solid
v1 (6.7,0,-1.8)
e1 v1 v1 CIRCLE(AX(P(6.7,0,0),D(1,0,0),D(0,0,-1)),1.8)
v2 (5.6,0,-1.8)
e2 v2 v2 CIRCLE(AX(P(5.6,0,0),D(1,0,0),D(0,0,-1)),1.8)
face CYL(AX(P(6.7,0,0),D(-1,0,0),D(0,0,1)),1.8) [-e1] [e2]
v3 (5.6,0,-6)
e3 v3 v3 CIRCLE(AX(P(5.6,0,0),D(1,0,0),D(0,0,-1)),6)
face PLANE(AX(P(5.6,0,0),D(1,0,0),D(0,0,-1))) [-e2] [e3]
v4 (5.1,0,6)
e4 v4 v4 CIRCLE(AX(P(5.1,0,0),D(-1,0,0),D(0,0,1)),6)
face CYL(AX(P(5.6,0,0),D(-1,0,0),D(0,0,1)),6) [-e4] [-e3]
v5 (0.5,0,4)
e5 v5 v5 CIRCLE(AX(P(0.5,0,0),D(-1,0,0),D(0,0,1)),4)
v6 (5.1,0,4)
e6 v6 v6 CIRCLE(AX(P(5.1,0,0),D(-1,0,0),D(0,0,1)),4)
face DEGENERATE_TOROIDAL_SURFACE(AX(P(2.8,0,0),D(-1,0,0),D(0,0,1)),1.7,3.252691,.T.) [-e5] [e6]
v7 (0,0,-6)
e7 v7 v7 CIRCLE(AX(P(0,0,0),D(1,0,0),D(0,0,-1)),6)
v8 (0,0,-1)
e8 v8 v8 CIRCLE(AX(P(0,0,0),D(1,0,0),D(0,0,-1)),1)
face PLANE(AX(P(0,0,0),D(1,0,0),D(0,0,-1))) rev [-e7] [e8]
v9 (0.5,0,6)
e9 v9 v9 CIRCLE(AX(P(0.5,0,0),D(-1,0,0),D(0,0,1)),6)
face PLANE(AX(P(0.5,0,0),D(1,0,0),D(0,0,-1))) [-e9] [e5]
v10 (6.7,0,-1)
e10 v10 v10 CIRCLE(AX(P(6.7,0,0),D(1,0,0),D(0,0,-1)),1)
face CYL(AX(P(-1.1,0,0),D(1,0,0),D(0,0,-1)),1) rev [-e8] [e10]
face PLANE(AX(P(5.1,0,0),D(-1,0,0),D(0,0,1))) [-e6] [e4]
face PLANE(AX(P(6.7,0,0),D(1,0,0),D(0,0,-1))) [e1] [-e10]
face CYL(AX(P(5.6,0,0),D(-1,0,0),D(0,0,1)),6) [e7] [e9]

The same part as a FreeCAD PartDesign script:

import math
import FreeCAD as App
import Part
import Sketcher
from FreeCAD import Vector
Q = App.Units.Quantity

doc = App.newDocument("Part")
body = doc.addObject("PartDesign::Body", "Body")

# Sketch on YZ plane
sketch1 = body.newObject("Sketcher::SketchObject", "Sketch")
sketch1.AttachmentSupport = (doc.getObject("YZ_Plane"), [""])
sketch1.MapMode = "FlatFace"
sketch1.addGeometry(Part.Circle(Vector(0, 0, 0), Vector(0, 0, 1), 6), False)
sketch1.addConstraint([
    Sketcher.Constraint("Coincident", 0, 3, -1, 1),
    Sketcher.Constraint("Diameter", 0, Q("12 mm")),
])
pad1 = body.newObject("PartDesign::Pad", "Pad")
pad1.Profile = sketch1
pad1.Length = 5.6

# Sketch on YZ plane
sketch2 = body.newObject("Sketcher::SketchObject", "Sketch001")
sketch2.AttachmentSupport = (doc.getObject("YZ_Plane"), [""])
sketch2.MapMode = "FlatFace"
sketch2.AttachmentOffset = App.Placement(Vector(0, 0, 5.6), App.Rotation())
sketch2.addGeometry(Part.Circle(Vector(0, 0, 0), Vector(0, 0, 1), 1), False)
sketch2.addConstraint([
    Sketcher.Constraint("Coincident", 0, 3, -1, 1),
    Sketcher.Constraint("Diameter", 0, Q("2 mm")),
])
pocket1 = body.newObject("PartDesign::Pocket", "Pocket")
pocket1.Profile = sketch2
pocket1.Length = 6.7

# Sketch on YZ plane
sketch3 = body.newObject("Sketcher::SketchObject", "Sketch002")
sketch3.AttachmentSupport = (doc.getObject("YZ_Plane"), [""])
sketch3.MapMode = "FlatFace"
sketch3.AttachmentOffset = App.Placement(Vector(0, 0, 6.7), App.Rotation())
sketch3.addGeometry([
    Part.Circle(Vector(0, 0, 0), Vector(0, 0, 1), 1.8),
    Part.Circle(Vector(0, 0, 0), Vector(0, 0, 1), 1),
], False)
sketch3.addConstraint([
    Sketcher.Constraint("Coincident", 0, 3, -1, 1),
    Sketcher.Constraint("Coincident", 1, 3, -1, 1),
    Sketcher.Constraint("Diameter", 1, Q("2 mm")),
    Sketcher.Constraint("Diameter", 0, Q("3.6 mm")),
])
pad2 = body.newObject("PartDesign::Pad", "Pad001")
pad2.Profile = sketch3
pad2.Length = 1.1
pad2.Reversed = True

# Sketch on XY plane
sketch4 = body.newObject("Sketcher::SketchObject", "Sketch003")
sketch4.AttachmentSupport = (doc.getObject("XY_Plane"), [""])
sketch4.MapMode = "FlatFace"
sketch4.addGeometry([
    Part.LineSegment(Vector(0.5, 6, 0), Vector(0.5, 4, 0)),
    Part.ArcOfCircle(Part.Circle(Vector(2.8, 1.7, 0), Vector(0, 0, 1), 3.3), math.radians(45), math.radians(135)),
    Part.LineSegment(Vector(5.1, 4, 0), Vector(5.1, 6, 0)),
    Part.LineSegment(Vector(5.1, 6, 0), Vector(0.5, 6, 0)),
], False)
sketch4.addConstraint([
    Sketcher.Constraint("Coincident", 0, 2, 1, 2),
    Sketcher.Constraint("Coincident", 1, 1, 2, 1),
    Sketcher.Constraint("Coincident", 2, 2, 3, 1),
    Sketcher.Constraint("Coincident", 3, 2, 0, 1),
    Sketcher.Constraint("Vertical", 0),
    Sketcher.Constraint("Vertical", 2),
    Sketcher.Constraint("Horizontal", 3),
    Sketcher.Constraint("Horizontal", 0, 2, 1, 1),
    Sketcher.Constraint("DistanceY", 0, 2, 0, 1, Q("2 mm")),
    Sketcher.Constraint("DistanceX", 3, 2, 3, 1, Q("4.6 mm")),
    Sketcher.Constraint("DistanceY", -1, 1, 0, 2, Q("4 mm")),
    Sketcher.Constraint("DistanceX", -1, 1, 1, 3, Q("2.8 mm")),
    Sketcher.Constraint("DistanceY", -1, 1, 1, 3, Q("1.7 mm")),
])
groove = body.newObject("PartDesign::Groove", "Groove")
groove.Profile = sketch4
groove.ReferenceAxis = (sketch4, ["H_Axis"])
groove.Angle = 360

doc.recompute()
